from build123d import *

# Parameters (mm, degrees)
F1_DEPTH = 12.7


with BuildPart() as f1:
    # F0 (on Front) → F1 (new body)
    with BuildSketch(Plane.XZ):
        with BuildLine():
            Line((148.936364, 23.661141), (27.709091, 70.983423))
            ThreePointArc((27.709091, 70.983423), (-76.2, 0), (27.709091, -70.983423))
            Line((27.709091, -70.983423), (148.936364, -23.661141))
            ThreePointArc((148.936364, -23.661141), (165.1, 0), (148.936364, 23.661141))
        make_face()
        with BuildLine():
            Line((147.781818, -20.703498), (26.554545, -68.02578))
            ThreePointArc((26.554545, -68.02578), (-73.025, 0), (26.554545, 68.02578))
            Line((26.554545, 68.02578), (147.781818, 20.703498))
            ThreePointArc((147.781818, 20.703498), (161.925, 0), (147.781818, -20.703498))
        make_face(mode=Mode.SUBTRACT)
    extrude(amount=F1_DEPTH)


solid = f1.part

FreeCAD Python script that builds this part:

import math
import FreeCAD as App
import Part
import Sketcher

V = App.Vector
Q = App.Units.Quantity

doc = App.newDocument("Part")
body = doc.addObject("PartDesign::Body", "Body")

# Sketch on XZ plane
sketch1 = doc.addObject("Sketcher::SketchObject", "Sketch")
body.addObject(sketch1)
sketch1.AttachmentSupport = (doc.XZ_Plane, [""])
sketch1.MapMode = "FlatFace"
sketch1.addGeometry([
    Part.LineSegment(V(148.936364, 23.661141, 0), V(27.709091, 70.983423, 0)),  # 0
    Part.ArcOfCircle(Part.Circle(V(0, 0, 0), V(0, 0, 1), 76.2), math.radians(68.676314), math.radians(291.323686)),  # 1
    Part.LineSegment(V(27.709091, -70.983423, 0), V(148.936364, -23.661141, 0)),  # 2
    Part.ArcOfCircle(Part.Circle(V(139.7, 0, 0), V(0, 0, 1), 25.4), math.radians(-68.676312), math.radians(68.676312)),  # 3
    Part.ArcOfCircle(Part.Circle(V(139.7, 0, 0), V(0, 0, 1), 22.225), math.radians(-68.676315), math.radians(68.676315)),  # 4
    Part.LineSegment(V(147.781818, -20.703498, 0), V(26.554545, -68.02578, 0)),  # 5
    Part.ArcOfCircle(Part.Circle(V(0, 0, 0), V(0, 0, 1), 73.025), math.radians(68.676314), math.radians(291.323686)),  # 6
    Part.LineSegment(V(26.554545, 68.02578, 0), V(147.781818, 20.703498, 0)),  # 7
], False)
sketch1.addConstraint([
    Sketcher.Constraint("Tangent", 0, 2, 1, 1),
    Sketcher.Constraint("Tangent", 1, 2, 2, 1),
    Sketcher.Constraint("Tangent", 2, 2, 3, 1),
    Sketcher.Constraint("Tangent", 3, 2, 0, 1),
    Sketcher.Constraint("Tangent", 4, 1, 5, 1),
    Sketcher.Constraint("Tangent", 5, 2, 6, 2),
    Sketcher.Constraint("Tangent", 6, 1, 7, 1),
    Sketcher.Constraint("Tangent", 7, 2, 4, 2),
    Sketcher.Constraint("Coincident", 1, 3, -1, 1),
    Sketcher.Constraint("Coincident", 6, 3, -1, 1),
    Sketcher.Constraint("Coincident", 4, 3, 3, 3),
    Sketcher.Constraint("PointOnObject", 3, 3, -1),
    Sketcher.Constraint("Parallel", 2, 5),
    Sketcher.Constraint("Radius", 1, Q("3 in")),
    Sketcher.Constraint("Radius", 3, Q("1 in")),
    Sketcher.Constraint("Radius", 4, Q("0.875 in")),
    Sketcher.Constraint("DistanceX", -1, 1, 3, 3, Q("5.5 in")),
])
pad1 = doc.addObject("PartDesign::Pad", "Pad")
body.addObject(pad1)
pad1.Profile = sketch1
pad1.Length = Q("0.5 in")

doc.recompute()
